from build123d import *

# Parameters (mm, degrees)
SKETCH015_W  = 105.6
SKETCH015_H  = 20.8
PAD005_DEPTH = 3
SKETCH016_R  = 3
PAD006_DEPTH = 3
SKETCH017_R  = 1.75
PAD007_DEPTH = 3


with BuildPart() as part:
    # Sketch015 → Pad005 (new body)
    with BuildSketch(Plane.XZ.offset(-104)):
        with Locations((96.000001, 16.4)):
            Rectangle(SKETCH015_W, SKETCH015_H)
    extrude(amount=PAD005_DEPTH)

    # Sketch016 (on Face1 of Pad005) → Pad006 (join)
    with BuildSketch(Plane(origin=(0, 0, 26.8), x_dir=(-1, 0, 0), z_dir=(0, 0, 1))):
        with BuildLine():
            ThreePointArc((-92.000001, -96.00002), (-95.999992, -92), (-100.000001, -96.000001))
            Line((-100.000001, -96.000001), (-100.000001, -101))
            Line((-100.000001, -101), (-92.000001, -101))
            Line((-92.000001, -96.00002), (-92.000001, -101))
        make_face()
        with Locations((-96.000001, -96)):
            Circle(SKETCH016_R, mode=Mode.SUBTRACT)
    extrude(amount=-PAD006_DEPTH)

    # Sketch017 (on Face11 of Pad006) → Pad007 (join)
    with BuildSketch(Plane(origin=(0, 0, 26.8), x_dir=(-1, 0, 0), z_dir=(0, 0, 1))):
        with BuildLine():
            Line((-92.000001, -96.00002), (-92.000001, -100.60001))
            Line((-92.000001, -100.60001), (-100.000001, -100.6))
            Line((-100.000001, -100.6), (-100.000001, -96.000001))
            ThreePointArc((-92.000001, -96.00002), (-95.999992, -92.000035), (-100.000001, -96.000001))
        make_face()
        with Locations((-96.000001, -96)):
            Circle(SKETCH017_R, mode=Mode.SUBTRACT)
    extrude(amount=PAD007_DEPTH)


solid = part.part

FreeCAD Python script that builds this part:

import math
import FreeCAD as App
import Part
import Sketcher
Q = App.Units.Quantity


def add_polygon(sketch, points):
    """Adds a closed chain of lines whose ends are joined by coincident constraints."""
    first, n = sketch.GeometryCount, len(points)
    for a, b in zip(points, points[1:] + points[:1]):
        sketch.addGeometry(Part.LineSegment(App.Vector(*a, 0), App.Vector(*b, 0)), False)
    for i in range(n):
        sketch.addConstraint(Sketcher.Constraint("Coincident", first + i, 2, first + (i + 1) % n, 1))

doc = App.newDocument("Part")
body = doc.addObject("PartDesign::Body", "Body")

# Sketch on XZ plane
sketch1 = body.newObject("Sketcher::SketchObject", "Sketch")
sketch1.AttachmentSupport = (doc.getObject("XZ_Plane"), [""])
sketch1.MapMode = "FlatFace"
sketch1.AttachmentOffset = App.Placement(App.Vector(0, 0, -104), App.Rotation())
add_polygon(sketch1, [(43, 27), (43, 6), (149, 6), (149, 27)])  # lines 0-3
sketch1.addConstraint(Sketcher.Constraint("Vertical", 0))
sketch1.addConstraint(Sketcher.Constraint("Horizontal", 1))
sketch1.addConstraint(Sketcher.Constraint("Vertical", 2))
sketch1.addConstraint(Sketcher.Constraint("Horizontal", 3))
sketch1.addConstraint(Sketcher.Constraint("DistanceX", 1, 1, 1, 2, Q("105.6 mm")))
sketch1.addConstraint(Sketcher.Constraint("DistanceY", 0, 2, 0, 1, Q("20.8 mm")))
sketch1.addConstraint(Sketcher.Constraint("DistanceY", -1, 1, 0, 2, Q("6 mm")))
sketch1.addConstraint(Sketcher.Constraint("DistanceX", -1, 1, 0, 2, Q("43.200001 mm")))
pad1 = body.newObject("PartDesign::Pad", "Pad")
pad1.Profile = sketch1
pad1.Length = 3

# Sketch on XY plane
sketch2 = body.newObject("Sketcher::SketchObject", "Sketch001")
sketch2.AttachmentSupport = (doc.getObject("XY_Plane"), [""])
sketch2.MapMode = "FlatFace"
sketch2.AttachmentOffset = App.Placement(App.Vector(0, 0, 26.8), App.Rotation())
sketch2.addGeometry(Part.ArcOfCircle(Part.Circle(App.Vector(96.000001, 96, 0), App.Vector(0, 0, 1), 4), math.radians(179.999714), math.radians(360.000014)), False)
sketch2.addGeometry(Part.LineSegment(App.Vector(100.000001, 96.000001, 0), App.Vector(100.000001, 101, 0)), False)
sketch2.addGeometry(Part.LineSegment(App.Vector(100.000001, 101, 0), App.Vector(92.000001, 101, 0)), False)
sketch2.addGeometry(Part.LineSegment(App.Vector(92.000001, 101, 0), App.Vector(92.000001, 96.00002, 0)), False)
sketch2.addGeometry(Part.Circle(App.Vector(96.000001, 96, 0), App.Vector(0, 0, 1), 3), False)
sketch2.addConstraint(Sketcher.Constraint("Tangent", 0, 2, 1, 1))
sketch2.addConstraint(Sketcher.Constraint("Coincident", 1, 2, 2, 1))
sketch2.addConstraint(Sketcher.Constraint("Coincident", 2, 2, 3, 1))
sketch2.addConstraint(Sketcher.Constraint("Coincident", 3, 2, 0, 1))
sketch2.addConstraint(Sketcher.Constraint("Vertical", 1))
sketch2.addConstraint(Sketcher.Constraint("Horizontal", 2))
sketch2.addConstraint(Sketcher.Constraint("Vertical", 3))
sketch2.addConstraint(Sketcher.Constraint("Coincident", 4, 3, 0, 3))
sketch2.addConstraint(Sketcher.Constraint("Diameter", 4, Q("6 mm")))
sketch2.addConstraint(Sketcher.Constraint("Radius", 0, Q("4 mm")))
sketch2.addConstraint(Sketcher.Constraint("DistanceY", 1, 1, 1, 2, Q("4.999999 mm")))
sketch2.addConstraint(Sketcher.Constraint("DistanceX", -1, 1, 0, 3, Q("96.000001 mm")))
sketch2.addConstraint(Sketcher.Constraint("DistanceY", -1, 1, 0, 3, Q("96 mm")))
sketch2.addConstraint(Sketcher.Constraint("DistanceY", 3, 2, 3, 1, Q("4.99998 mm")))
pad2 = body.newObject("PartDesign::Pad", "Pad001")
pad2.Profile = sketch2
pad2.Length = 3
pad2.Reversed = True

# Sketch on XY plane
sketch3 = body.newObject("Sketcher::SketchObject", "Sketch002")
sketch3.AttachmentSupport = (doc.getObject("XY_Plane"), [""])
sketch3.MapMode = "FlatFace"
sketch3.AttachmentOffset = App.Placement(App.Vector(0, 0, 26.8), App.Rotation())
sketch3.addGeometry(Part.LineSegment(App.Vector(92, 100.6, 0), App.Vector(92, 96, 0)), False)
sketch3.addGeometry(Part.ArcOfCircle(Part.Circle(App.Vector(96, 96, 0), App.Vector(0, 0, 1), 4), math.radians(-180), math.radians(0)), False)
sketch3.addGeometry(Part.LineSegment(App.Vector(100, 96, 0), App.Vector(100, 100.6, 0)), False)
sketch3.addGeometry(Part.LineSegment(App.Vector(100, 100.6, 0), App.Vector(92, 100.6, 0)), False)
sketch3.addGeometry(Part.Circle(App.Vector(96, 96, 0), App.Vector(0, 0, 1), 1.8), False)
sketch3.addConstraint(Sketcher.Constraint("Coincident", 0, 2, 1, 1))
sketch3.addConstraint(Sketcher.Constraint("Coincident", 1, 2, 2, 1))
sketch3.addConstraint(Sketcher.Constraint("Coincident", 2, 2, 3, 1))
sketch3.addConstraint(Sketcher.Constraint("Coincident", 3, 2, 0, 1))
sketch3.addConstraint(Sketcher.Constraint("Vertical", 0))
sketch3.addConstraint(Sketcher.Constraint("Vertical", 2))
sketch3.addConstraint(Sketcher.Constraint("Horizontal", 4, 3, 1, 2))
sketch3.addConstraint(Sketcher.Constraint("Vertical", 1, 3, 4, 3))
sketch3.addConstraint(Sketcher.Constraint("Radius", 1, Q("4 mm")))
sketch3.addConstraint(Sketcher.Constraint("Diameter", 4, Q("3.5 mm")))
sketch3.addConstraint(Sketcher.Constraint("DistanceY", 2, 1, 2, 2, Q("4.599999 mm")))
sketch3.addConstraint(Sketcher.Constraint("DistanceX", -1, 1, 1, 3, Q("96.000001 mm")))
sketch3.addConstraint(Sketcher.Constraint("DistanceY", -1, 1, 4, 3, Q("96 mm")))
sketch3.addConstraint(Sketcher.Constraint("DistanceY", 0, 2, 0, 1, Q("4.59999 mm")))
sketch3.addConstraint(Sketcher.Constraint("DistanceY", -1, 1, 0, 2, Q("96.00002 mm")))
sketch3.addConstraint(Sketcher.Constraint("DistanceY", -1, 1, 1, 3, Q("96.000035 mm")))
pad3 = body.newObject("PartDesign::Pad", "Pad002")
pad3.Profile = sketch3
pad3.Length = 3

doc.recompute()
